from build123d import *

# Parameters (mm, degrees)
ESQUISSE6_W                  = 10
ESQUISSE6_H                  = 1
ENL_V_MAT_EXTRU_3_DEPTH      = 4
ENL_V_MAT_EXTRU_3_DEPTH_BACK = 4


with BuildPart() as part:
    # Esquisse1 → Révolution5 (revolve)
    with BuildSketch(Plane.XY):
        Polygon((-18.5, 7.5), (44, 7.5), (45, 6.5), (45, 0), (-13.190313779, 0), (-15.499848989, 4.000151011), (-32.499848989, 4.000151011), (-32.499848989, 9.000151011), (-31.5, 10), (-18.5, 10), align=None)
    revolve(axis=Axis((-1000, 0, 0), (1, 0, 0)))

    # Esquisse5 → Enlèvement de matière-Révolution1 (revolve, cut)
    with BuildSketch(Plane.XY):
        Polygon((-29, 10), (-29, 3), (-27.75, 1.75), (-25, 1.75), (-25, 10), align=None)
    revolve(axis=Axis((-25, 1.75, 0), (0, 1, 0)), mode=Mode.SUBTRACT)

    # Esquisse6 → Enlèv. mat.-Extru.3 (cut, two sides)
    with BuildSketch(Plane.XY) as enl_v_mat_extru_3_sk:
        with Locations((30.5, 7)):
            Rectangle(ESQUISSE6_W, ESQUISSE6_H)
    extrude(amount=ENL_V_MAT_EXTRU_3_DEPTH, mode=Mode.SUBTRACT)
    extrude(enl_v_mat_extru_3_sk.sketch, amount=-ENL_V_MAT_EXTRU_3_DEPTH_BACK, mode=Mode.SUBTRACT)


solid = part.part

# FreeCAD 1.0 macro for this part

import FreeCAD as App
import Part
import Sketcher

V = App.Vector
Q = App.Units.Quantity


def add_polygon(sketch, points):
    """Adds a closed chain of lines whose ends are joined by coincident constraints."""
    first, n = sketch.GeometryCount, len(points)
    for a, b in zip(points, points[1:] + points[:1]):
        sketch.addGeometry(Part.LineSegment(App.Vector(*a, 0), App.Vector(*b, 0)), False)
    for i in range(n):
        sketch.addConstraint(Sketcher.Constraint("Coincident", first + i, 2, first + (i + 1) % n, 1))

doc = App.newDocument("Part")
body = doc.addObject("PartDesign::Body", "Body")

# Sketch on XY plane
sketch1 = doc.addObject("Sketcher::SketchObject", "Sketch")
body.addObject(sketch1)
sketch1.AttachmentSupport = (doc.XY_Plane, [""])
sketch1.MapMode = "FlatFace"
add_polygon(sketch1, [(44, 7.5), (-18.5, 7.5), (-18.5, 10), (-31.5, 10), (-32.5, 9), (-32.5, 4), (-15.5, 4), (-13.2, 0), (45, 0), (45, 6.5)])  # lines 0-9
sketch1.addConstraint(Sketcher.Constraint("Horizontal", 0))
sketch1.addConstraint(Sketcher.Constraint("Vertical", 1))
sketch1.addConstraint(Sketcher.Constraint("Horizontal", 2))
sketch1.addConstraint(Sketcher.Constraint("Vertical", 4))
sketch1.addConstraint(Sketcher.Constraint("Horizontal", 5))
sketch1.addConstraint(Sketcher.Constraint("Horizontal", 7))
sketch1.addConstraint(Sketcher.Constraint("Vertical", 8))
sketch1.addConstraint(Sketcher.Constraint("PointOnObject", 6, 2, -1))
sketch1.addConstraint(Sketcher.Constraint("Perpendicular", 3, 9))
sketch1.addConstraint(Sketcher.Constraint("DistanceX", 2, 2, 2, 1, 13.0))
sketch1.addConstraint(Sketcher.Constraint("DistanceX", 5, 1, 5, 2, 17.0))
sketch1.addConstraint(Sketcher.Constraint("DistanceY", 4, 2, 4, 1, 5.0))
sketch1.addConstraint(Sketcher.Constraint("Angle", 3, Q("-135 deg")))
sketch1.addConstraint(Sketcher.Constraint("DistanceX", 0, 2, 0, 1, 62.5))
sketch1.addConstraint(Sketcher.Constraint("DistanceY", 1, 1, 1, 2, 2.5))
sketch1.addConstraint(Sketcher.Constraint("DistanceY", 8, 1, 8, 2, 6.5))
sketch1.addConstraint(Sketcher.Constraint("DistanceY", -1, 1, 1, 2, 10.0))
sketch1.addConstraint(Sketcher.Constraint("DistanceX", -1, 1, 7, 2, 45.0))
sketch1.addConstraint(Sketcher.Constraint("Distance", 3, 1.414))
sketch1.addConstraint(Sketcher.Constraint("Distance", 6, 4.619))
revolution = doc.addObject("PartDesign::Revolution", "Revolution")
body.addObject(revolution)
revolution.Profile = sketch1
revolution.ReferenceAxis = (sketch1, ["H_Axis"])
revolution.Angle = 360

# Sketch on XY plane
sketch2 = doc.addObject("Sketcher::SketchObject", "Sketch001")
body.addObject(sketch2)
sketch2.AttachmentSupport = (doc.XY_Plane, [""])
sketch2.MapMode = "FlatFace"
add_polygon(sketch2, [(-29, 10), (-29, 3), (-27.8, 1.8), (-25, 1.8), (-25, 10)])  # lines 0-4
sketch2.addGeometry(Part.LineSegment(V(-25, 1.8, 0), V(-25, 10, 0)), True)  # axis
sketch2.addConstraint(Sketcher.Constraint("Vertical", 0))
sketch2.addConstraint(Sketcher.Constraint("Horizontal", 2))
sketch2.addConstraint(Sketcher.Constraint("Vertical", 3))
sketch2.addConstraint(Sketcher.Constraint("Horizontal", 4))
sketch2.addConstraint(Sketcher.Constraint("Vertical", 5))
sketch2.addConstraint(Sketcher.Constraint("Coincident", 5, 1, 2, 2))
sketch2.addConstraint(Sketcher.Constraint("Horizontal", 4, 2, 5, 2))
sketch2.addConstraint(Sketcher.Constraint("DistanceX", 4, 2, 4, 1, 4.0))
sketch2.addConstraint(Sketcher.Constraint("DistanceY", 0, 2, 0, 1, 7.0))
sketch2.addConstraint(Sketcher.Constraint("Angle", 1, Q("-45 deg")))
sketch2.addConstraint(Sketcher.Constraint("DistanceX", 0, 2, -1, 1, 29.0))
sketch2.addConstraint(Sketcher.Constraint("DistanceY", -1, 1, 0, 2, 3.0))
sketch2.addConstraint(Sketcher.Constraint("DistanceX", 2, 1, 2, 2, 2.75))
groove = doc.addObject("PartDesign::Groove", "Groove")
body.addObject(groove)
groove.Profile = sketch2
groove.ReferenceAxis = (sketch2, ["Axis0"])
groove.Angle = 360

# Sketch on XY plane
sketch3 = doc.addObject("Sketcher::SketchObject", "Sketch002")
body.addObject(sketch3)
sketch3.AttachmentSupport = (doc.XY_Plane, [""])
sketch3.MapMode = "FlatFace"
add_polygon(sketch3, [(25.5, 7.5), (25.5, 6.5), (35.5, 6.5), (35.5, 7.5)])  # lines 0-3
sketch3.addConstraint(Sketcher.Constraint("Vertical", 0))
sketch3.addConstraint(Sketcher.Constraint("Horizontal", 1))
sketch3.addConstraint(Sketcher.Constraint("Vertical", 2))
sketch3.addConstraint(Sketcher.Constraint("Horizontal", 3))
sketch3.addConstraint(Sketcher.Constraint("DistanceX", 1, 1, 1, 2, 10.0))
sketch3.addConstraint(Sketcher.Constraint("DistanceY", 0, 2, 0, 1, 1.0))
sketch3.addConstraint(Sketcher.Constraint("DistanceX", -1, 1, 0, 2, 25.5))
sketch3.addConstraint(Sketcher.Constraint("DistanceY", -1, 1, 0, 2, 6.5))
pocket1 = doc.addObject("PartDesign::Pocket", "Pocket")
body.addObject(pocket1)
pocket1.Profile = sketch3
pocket1.Type = "ThroughAll"
pocket1.Midplane = True

doc.recompute()
